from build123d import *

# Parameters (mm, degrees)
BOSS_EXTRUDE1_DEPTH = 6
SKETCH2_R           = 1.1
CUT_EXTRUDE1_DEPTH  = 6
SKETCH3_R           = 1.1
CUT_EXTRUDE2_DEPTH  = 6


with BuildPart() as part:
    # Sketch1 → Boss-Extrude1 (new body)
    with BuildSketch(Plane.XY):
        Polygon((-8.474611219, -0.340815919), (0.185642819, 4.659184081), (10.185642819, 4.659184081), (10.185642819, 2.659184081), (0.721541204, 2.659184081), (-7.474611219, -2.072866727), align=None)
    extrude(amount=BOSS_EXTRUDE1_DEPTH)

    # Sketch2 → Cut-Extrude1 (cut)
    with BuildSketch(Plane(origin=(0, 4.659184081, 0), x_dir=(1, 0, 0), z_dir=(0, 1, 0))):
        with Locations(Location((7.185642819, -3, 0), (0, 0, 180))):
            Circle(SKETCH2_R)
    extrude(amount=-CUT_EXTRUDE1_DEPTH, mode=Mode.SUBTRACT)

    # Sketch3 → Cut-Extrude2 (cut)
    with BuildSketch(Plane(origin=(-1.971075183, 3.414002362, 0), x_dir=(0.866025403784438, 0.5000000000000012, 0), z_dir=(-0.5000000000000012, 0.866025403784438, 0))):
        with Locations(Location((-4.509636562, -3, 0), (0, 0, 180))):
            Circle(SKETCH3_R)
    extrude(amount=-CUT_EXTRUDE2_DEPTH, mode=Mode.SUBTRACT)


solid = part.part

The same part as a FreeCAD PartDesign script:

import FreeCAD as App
import Part
import Sketcher
Q = App.Units.Quantity


def add_polygon(sketch, points):
    """Adds a closed chain of lines whose ends are joined by coincident constraints."""
    first, n = sketch.GeometryCount, len(points)
    for a, b in zip(points, points[1:] + points[:1]):
        sketch.addGeometry(Part.LineSegment(App.Vector(*a, 0), App.Vector(*b, 0)), False)
    for i in range(n):
        sketch.addConstraint(Sketcher.Constraint("Coincident", first + i, 2, first + (i + 1) % n, 1))

doc = App.newDocument("Part")
params = doc.addObject("Spreadsheet::Sheet", "Params")
for row, (alias, value) in enumerate([
    ("sketch1_width", "10 mm"),
    ("sketch1_height", "2 mm"),
    ("sketch1_length", "10 mm"),
    ("sketch1_length2", "2 mm"),
    ("pad1_length", "6 mm"),
    ("sketch2_diameter", "2.2 mm"),
    ("pocket1_length", "6 mm"),
    ("sketch3_diameter", "2.2 mm"),
    ("pocket2_length", "6 mm"),
], start=1):
    params.set(f"A{row}", alias)
    params.set(f"B{row}", "=" + value)
    params.setAlias(f"B{row}", alias)

body = doc.addObject("PartDesign::Body", "Body")

sketch1 = body.newObject("Sketcher::SketchObject", "Sketch")
sketch1.AttachmentSupport = (doc.getObject("XY_Plane"), [""])
sketch1.MapMode = "FlatFace"
add_polygon(sketch1, [(0.2, 4.7), (-8.5, -0.3), (-7.5, -2.1), (0.7, 2.7), (10.2, 2.7), (10.2, 4.7)])
sketch1.addConstraint(Sketcher.Constraint("Horizontal", 3))
sketch1.addConstraint(Sketcher.Constraint("Vertical", 4))
sketch1.addConstraint(Sketcher.Constraint("Horizontal", 5))
sketch1.addConstraint(Sketcher.Constraint("Perpendicular", 0, 1))
sketch1.addConstraint(Sketcher.Constraint("Perpendicular", 1, 2))
sketch1.addConstraint(Sketcher.Constraint("DistanceX", 5, 2, 5, 1, 10.0))
sketch1.addConstraint(Sketcher.Constraint("DistanceY", 4, 1, 4, 2, 2.0))
sketch1.addConstraint(Sketcher.Constraint("Angle", 0, Q("-150 deg")))
sketch1.addConstraint(Sketcher.Constraint("Distance", 0, 10.0))
sketch1.addConstraint(Sketcher.Constraint("Distance", 1, 2.0))
sketch1.addConstraint(Sketcher.Constraint("DistanceX", 0, 2, -1, 1, 8.474611))
sketch1.addConstraint(Sketcher.Constraint("DistanceY", 0, 2, -1, 1, 0.340816))
sketch1.setExpression("Constraints[11]", "Params.sketch1_width")
sketch1.setExpression("Constraints[12]", "Params.sketch1_height")
sketch1.setExpression("Constraints[14]", "Params.sketch1_length")
sketch1.setExpression("Constraints[15]", "Params.sketch1_length2")
pad1 = body.newObject("PartDesign::Pad", "Pad")
pad1.Profile = sketch1
pad1.setExpression("Length", "Params.pad1_length")

sketch2 = body.newObject("Sketcher::SketchObject", "Sketch001")
sketch2.AttachmentSupport = (doc.getObject("XZ_Plane"), [""])
sketch2.MapMode = "FlatFace"
sketch2.AttachmentOffset = App.Placement(App.Vector(0, 0, -4.659184), App.Rotation())
sketch2.addGeometry(Part.Circle(App.Vector(7.2, 3, 0), App.Vector(0, 0, 1), 1.1), False)
sketch2.addConstraint(Sketcher.Constraint("Diameter", 0, 2.2))
sketch2.addConstraint(Sketcher.Constraint("DistanceY", -1, 1, 0, 3, 3.0))
sketch2.addConstraint(Sketcher.Constraint("DistanceX", -1, 1, 0, 3, 7.185643))
sketch2.setExpression("Constraints[0]", "Params.sketch2_diameter")
pocket1 = body.newObject("PartDesign::Pocket", "Pocket")
pocket1.Profile = sketch2
pocket1.setExpression("Length", "Params.pocket1_length")
pocket1.Reversed = True

sketch3 = body.newObject("Sketcher::SketchObject", "Sketch002")
sketch3.Placement = App.Placement(App.Vector(-1.971075, 3.414002, 0), App.Rotation(App.Vector(0.866025404, 0.5, 0), App.Vector(0, 0, -1), App.Vector(-0.5, 0.866025404, 0), "ZXY"))
sketch3.addGeometry(Part.Circle(App.Vector(-4.5, -3, 0), App.Vector(0, 0, 1), 1.1), False)
sketch3.addConstraint(Sketcher.Constraint("Diameter", 0, 2.2))
sketch3.addConstraint(Sketcher.Constraint("DistanceY", 0, 3, -1, 1, 3.0))
sketch3.addConstraint(Sketcher.Constraint("DistanceX", 0, 3, -1, 1, 4.509637))
sketch3.setExpression("Constraints[0]", "Params.sketch3_diameter")
pocket2 = body.newObject("PartDesign::Pocket", "Pocket001")
pocket2.Profile = sketch3
pocket2.setExpression("Length", "Params.pocket2_length")

doc.recompute()
